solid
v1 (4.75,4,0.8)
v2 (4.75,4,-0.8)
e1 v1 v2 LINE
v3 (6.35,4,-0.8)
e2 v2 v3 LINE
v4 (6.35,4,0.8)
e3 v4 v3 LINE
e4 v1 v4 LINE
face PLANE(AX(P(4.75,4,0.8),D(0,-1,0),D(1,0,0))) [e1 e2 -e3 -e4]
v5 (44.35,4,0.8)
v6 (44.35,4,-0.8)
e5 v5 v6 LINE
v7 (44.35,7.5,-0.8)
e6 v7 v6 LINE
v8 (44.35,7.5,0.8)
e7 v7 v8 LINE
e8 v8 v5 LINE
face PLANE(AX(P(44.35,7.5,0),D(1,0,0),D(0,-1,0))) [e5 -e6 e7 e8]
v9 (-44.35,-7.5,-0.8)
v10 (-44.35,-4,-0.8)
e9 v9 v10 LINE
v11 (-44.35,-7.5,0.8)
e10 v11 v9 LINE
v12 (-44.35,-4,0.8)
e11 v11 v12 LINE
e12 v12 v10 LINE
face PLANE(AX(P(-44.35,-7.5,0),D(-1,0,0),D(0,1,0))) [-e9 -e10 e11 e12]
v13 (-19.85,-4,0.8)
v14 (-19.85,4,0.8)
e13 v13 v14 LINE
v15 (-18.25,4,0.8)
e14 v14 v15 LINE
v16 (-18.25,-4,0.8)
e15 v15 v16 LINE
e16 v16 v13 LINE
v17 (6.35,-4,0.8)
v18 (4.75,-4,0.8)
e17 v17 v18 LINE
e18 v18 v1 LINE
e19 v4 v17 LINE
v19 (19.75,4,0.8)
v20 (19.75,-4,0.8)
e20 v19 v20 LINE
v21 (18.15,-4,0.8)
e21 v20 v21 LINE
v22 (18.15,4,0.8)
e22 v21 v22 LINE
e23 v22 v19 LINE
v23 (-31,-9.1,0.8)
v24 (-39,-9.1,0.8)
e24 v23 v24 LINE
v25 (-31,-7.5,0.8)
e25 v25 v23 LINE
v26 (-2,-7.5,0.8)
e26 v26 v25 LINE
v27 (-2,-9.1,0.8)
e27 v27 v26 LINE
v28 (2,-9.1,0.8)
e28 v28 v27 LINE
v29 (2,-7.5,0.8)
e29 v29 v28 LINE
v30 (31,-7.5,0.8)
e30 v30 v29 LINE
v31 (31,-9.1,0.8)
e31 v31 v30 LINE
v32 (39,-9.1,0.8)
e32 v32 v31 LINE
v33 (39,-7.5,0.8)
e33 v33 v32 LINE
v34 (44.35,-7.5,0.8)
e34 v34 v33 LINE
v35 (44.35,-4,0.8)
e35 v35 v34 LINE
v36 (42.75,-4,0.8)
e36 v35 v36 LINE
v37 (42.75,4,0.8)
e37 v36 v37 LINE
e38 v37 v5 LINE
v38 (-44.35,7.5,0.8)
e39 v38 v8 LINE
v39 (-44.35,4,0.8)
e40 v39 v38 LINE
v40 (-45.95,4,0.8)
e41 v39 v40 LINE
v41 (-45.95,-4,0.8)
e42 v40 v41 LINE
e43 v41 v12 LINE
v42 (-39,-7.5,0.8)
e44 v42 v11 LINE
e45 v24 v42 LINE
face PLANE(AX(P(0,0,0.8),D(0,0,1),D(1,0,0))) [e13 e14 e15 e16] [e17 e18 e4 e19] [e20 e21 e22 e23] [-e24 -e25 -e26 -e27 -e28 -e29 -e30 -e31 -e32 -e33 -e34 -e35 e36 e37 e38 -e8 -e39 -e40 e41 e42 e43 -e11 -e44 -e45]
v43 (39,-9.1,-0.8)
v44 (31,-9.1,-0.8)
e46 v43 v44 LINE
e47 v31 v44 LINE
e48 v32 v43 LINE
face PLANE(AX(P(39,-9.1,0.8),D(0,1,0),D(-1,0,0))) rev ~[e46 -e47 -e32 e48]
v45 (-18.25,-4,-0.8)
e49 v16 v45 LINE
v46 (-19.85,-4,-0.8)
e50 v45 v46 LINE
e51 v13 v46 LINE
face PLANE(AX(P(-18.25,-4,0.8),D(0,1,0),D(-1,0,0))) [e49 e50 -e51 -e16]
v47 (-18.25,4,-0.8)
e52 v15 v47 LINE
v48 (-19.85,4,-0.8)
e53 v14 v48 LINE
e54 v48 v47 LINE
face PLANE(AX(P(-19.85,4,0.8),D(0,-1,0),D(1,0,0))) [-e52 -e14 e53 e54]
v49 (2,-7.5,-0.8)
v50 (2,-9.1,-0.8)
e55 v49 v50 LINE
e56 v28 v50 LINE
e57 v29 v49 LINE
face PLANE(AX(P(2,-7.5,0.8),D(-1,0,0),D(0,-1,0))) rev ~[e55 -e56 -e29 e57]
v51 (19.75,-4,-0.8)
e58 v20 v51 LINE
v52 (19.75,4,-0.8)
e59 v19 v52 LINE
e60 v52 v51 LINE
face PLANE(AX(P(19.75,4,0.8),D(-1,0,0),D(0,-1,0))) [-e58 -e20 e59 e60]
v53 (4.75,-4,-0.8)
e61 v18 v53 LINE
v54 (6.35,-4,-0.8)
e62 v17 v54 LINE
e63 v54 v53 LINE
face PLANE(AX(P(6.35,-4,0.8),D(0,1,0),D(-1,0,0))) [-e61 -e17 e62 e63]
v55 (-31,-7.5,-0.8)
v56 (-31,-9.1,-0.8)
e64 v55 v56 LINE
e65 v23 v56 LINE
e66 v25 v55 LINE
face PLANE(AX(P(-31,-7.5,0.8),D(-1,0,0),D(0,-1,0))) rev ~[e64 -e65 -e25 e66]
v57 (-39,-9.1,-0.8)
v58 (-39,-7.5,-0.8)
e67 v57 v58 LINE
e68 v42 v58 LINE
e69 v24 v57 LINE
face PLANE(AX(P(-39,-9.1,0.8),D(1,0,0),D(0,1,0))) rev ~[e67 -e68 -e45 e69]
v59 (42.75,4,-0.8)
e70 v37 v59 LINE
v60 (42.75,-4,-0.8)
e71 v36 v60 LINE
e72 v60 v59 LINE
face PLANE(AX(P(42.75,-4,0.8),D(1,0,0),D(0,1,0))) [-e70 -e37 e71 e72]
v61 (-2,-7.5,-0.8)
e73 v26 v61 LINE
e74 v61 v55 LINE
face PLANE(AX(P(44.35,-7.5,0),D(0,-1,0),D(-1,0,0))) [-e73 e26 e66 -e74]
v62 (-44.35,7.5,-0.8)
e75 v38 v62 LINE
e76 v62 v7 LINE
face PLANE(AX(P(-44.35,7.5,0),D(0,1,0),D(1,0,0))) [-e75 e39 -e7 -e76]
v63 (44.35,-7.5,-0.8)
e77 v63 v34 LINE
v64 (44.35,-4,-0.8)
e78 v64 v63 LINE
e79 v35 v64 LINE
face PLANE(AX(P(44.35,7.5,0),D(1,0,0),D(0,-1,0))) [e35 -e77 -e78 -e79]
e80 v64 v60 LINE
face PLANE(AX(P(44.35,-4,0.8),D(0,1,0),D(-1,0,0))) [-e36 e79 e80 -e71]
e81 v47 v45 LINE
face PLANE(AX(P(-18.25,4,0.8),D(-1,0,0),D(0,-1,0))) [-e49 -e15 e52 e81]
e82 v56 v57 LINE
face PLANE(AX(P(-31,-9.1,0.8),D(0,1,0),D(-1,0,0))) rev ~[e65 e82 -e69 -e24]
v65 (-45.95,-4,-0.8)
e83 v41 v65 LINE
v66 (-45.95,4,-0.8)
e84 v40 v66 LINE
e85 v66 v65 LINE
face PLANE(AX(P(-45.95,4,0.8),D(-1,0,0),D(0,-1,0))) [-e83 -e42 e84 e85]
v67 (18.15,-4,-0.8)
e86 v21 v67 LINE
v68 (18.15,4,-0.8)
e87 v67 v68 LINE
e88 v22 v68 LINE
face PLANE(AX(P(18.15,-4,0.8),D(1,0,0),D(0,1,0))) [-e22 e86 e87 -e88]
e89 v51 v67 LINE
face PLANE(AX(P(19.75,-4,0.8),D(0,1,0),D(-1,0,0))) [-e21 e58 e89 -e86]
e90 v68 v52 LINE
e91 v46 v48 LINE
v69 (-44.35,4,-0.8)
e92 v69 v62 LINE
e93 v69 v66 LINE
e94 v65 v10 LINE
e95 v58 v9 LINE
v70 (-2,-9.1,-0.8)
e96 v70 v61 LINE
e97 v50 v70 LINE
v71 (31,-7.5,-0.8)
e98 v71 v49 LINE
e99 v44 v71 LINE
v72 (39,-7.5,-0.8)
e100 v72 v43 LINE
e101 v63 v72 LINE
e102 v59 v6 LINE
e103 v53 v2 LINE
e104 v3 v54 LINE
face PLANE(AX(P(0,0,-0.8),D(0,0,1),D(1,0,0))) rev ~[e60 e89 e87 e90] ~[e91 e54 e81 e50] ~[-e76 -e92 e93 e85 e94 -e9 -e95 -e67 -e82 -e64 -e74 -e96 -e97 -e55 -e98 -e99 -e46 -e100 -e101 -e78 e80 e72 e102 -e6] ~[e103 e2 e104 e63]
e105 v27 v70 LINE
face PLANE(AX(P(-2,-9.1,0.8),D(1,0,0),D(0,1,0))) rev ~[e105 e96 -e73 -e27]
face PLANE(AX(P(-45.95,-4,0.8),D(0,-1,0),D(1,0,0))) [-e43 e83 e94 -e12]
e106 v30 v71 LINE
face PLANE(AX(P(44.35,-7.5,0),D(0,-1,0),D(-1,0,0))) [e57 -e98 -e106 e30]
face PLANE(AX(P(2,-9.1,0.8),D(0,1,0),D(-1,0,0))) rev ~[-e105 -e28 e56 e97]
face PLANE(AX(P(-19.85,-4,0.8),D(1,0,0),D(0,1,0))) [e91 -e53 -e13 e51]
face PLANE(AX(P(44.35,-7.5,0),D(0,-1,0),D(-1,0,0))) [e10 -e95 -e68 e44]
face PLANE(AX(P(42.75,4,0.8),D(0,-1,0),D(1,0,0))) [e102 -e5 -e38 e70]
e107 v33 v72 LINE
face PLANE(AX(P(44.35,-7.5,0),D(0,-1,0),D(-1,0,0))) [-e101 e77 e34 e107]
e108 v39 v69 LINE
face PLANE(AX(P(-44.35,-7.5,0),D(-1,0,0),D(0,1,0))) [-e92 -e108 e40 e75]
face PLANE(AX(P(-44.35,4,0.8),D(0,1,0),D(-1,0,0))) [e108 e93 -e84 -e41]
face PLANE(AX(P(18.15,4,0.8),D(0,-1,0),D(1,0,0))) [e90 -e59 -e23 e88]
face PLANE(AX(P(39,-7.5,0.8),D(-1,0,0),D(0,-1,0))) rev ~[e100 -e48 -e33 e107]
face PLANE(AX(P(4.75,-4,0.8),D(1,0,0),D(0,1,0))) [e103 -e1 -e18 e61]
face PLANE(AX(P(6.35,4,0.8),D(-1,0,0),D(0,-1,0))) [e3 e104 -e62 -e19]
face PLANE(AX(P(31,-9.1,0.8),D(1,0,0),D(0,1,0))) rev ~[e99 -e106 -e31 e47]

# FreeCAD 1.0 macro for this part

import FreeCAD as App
import Part
import Sketcher
from FreeCAD import Vector
Q = App.Units.Quantity

doc = App.newDocument("Part")
body = doc.addObject("PartDesign::Body", "Body")

sketch1 = doc.addObject("Sketcher::SketchObject", "Sketch")
body.addObject(sketch1)
sketch1.AttachmentSupport = (doc.XY_Plane, [""])
sketch1.MapMode = "FlatFace"
sketch1.addGeometry([
    Part.LineSegment(Vector(-44, -8, 0), Vector(44, -8, 0)),
    Part.LineSegment(Vector(44, -8, 0), Vector(44, 8, 0)),
    Part.LineSegment(Vector(44, 8, 0), Vector(-44, 8, 0)),
    Part.LineSegment(Vector(-44, 8, 0), Vector(-44, -8, 0)),
], False)
sketch1.addConstraint([
    Sketcher.Constraint("Coincident", 0, 2, 1, 1),
    Sketcher.Constraint("Coincident", 1, 2, 2, 1),
    Sketcher.Constraint("Coincident", 2, 2, 3, 1),
    Sketcher.Constraint("Coincident", 3, 2, 0, 1),
    Sketcher.Constraint("Horizontal", 0),
    Sketcher.Constraint("Vertical", 1),
    Sketcher.Constraint("Horizontal", 2),
    Sketcher.Constraint("Vertical", 3),
    Sketcher.Constraint("Symmetric", 0, 2, 2, 2, -1, 1),
    Sketcher.Constraint("DistanceY", 1, 1, 1, 2, Q("15 mm")),
    Sketcher.Constraint("DistanceX", 0, 1, 0, 2, Q("88.7 mm")),
])
pad1 = doc.addObject("PartDesign::Pad", "Pad")
body.addObject(pad1)
pad1.Profile = sketch1
pad1.Length = 1.6
pad1.Midplane = True

sketch2 = doc.addObject("Sketcher::SketchObject", "Sketch001")
body.addObject(sketch2)
sketch2.AttachmentSupport = (doc.XY_Plane, [""])
sketch2.MapMode = "FlatFace"
sketch2.AttachmentOffset = App.Placement(Vector(0, 0, 0.8), App.Rotation())
sketch2.addGeometry([
    Part.LineSegment(Vector(-31, -7.5, 0), Vector(-39, -7.5, 0)),
    Part.LineSegment(Vector(-39, -7.5, 0), Vector(-39, -9.1, 0)),
    Part.LineSegment(Vector(-39, -9.1, 0), Vector(-31, -9.1, 0)),
    Part.LineSegment(Vector(-31, -9.1, 0), Vector(-31, -7.5, 0)),
    Part.LineSegment(Vector(39, -7.5, 0), Vector(31, -7.5, 0)),
    Part.LineSegment(Vector(31, -7.5, 0), Vector(31, -9.1, 0)),
    Part.LineSegment(Vector(31, -9.1, 0), Vector(39, -9.1, 0)),
    Part.LineSegment(Vector(39, -9.1, 0), Vector(39, -7.5, 0)),
    Part.LineSegment(Vector(2, -7.5, 0), Vector(-2, -7.5, 0)),
    Part.LineSegment(Vector(-2, -7.5, 0), Vector(-2, -9.1, 0)),
    Part.LineSegment(Vector(-2, -9.1, 0), Vector(2, -9.1, 0)),
    Part.LineSegment(Vector(2, -9.1, 0), Vector(2, -7.5, 0)),
], False)
sketch2.addConstraint([
    Sketcher.Constraint("Coincident", 0, 2, 1, 1),
    Sketcher.Constraint("Coincident", 1, 2, 2, 1),
    Sketcher.Constraint("Coincident", 2, 2, 3, 1),
    Sketcher.Constraint("Coincident", 3, 2, 0, 1),
    Sketcher.Constraint("Coincident", 4, 2, 5, 1),
    Sketcher.Constraint("Coincident", 5, 2, 6, 1),
    Sketcher.Constraint("Coincident", 6, 2, 7, 1),
    Sketcher.Constraint("Coincident", 7, 2, 4, 1),
    Sketcher.Constraint("Coincident", 8, 2, 9, 1),
    Sketcher.Constraint("Coincident", 9, 2, 10, 1),
    Sketcher.Constraint("Coincident", 10, 2, 11, 1),
    Sketcher.Constraint("Coincident", 11, 2, 8, 1),
    Sketcher.Constraint("Horizontal", 0),
    Sketcher.Constraint("Vertical", 1),
    Sketcher.Constraint("Horizontal", 2),
    Sketcher.Constraint("Vertical", 3),
    Sketcher.Constraint("Horizontal", 4),
    Sketcher.Constraint("Vertical", 5),
    Sketcher.Constraint("Horizontal", 6),
    Sketcher.Constraint("Vertical", 7),
    Sketcher.Constraint("Horizontal", 8),
    Sketcher.Constraint("Vertical", 9),
    Sketcher.Constraint("Horizontal", 10),
    Sketcher.Constraint("Vertical", 11),
    Sketcher.Constraint("Symmetric", 3, 2, 4, 2, -2),
    Sketcher.Constraint("Symmetric", 1, 2, 6, 2, -2),
    Sketcher.Constraint("Horizontal", 7, 2, 8, 2),
    Sketcher.Constraint("Horizontal", 6, 2, 9, 2),
    Sketcher.Constraint("DistanceX", 0, 2, 0, 1, Q("8 mm")),
    Sketcher.Constraint("DistanceX", 8, 2, 8, 1, Q("4 mm")),
    Sketcher.Constraint("DistanceY", 1, 2, 1, 1, Q("1.6 mm")),
    Sketcher.Constraint("DistanceX", 0, 2, 4, 2, Q("70 mm")),
    Sketcher.Constraint("DistanceX", 8, 2, -1, 1, Q("2 mm")),
    Sketcher.Constraint("DistanceY", 0, 2, -1, 1, Q("7.5 mm")),
])
pad2 = doc.addObject("PartDesign::Pad", "Pad001")
body.addObject(pad2)
pad2.Profile = sketch2
pad2.Length = 1.6
pad2.Reversed = True

sketch3 = doc.addObject("Sketcher::SketchObject", "Sketch002")
body.addObject(sketch3)
sketch3.AttachmentSupport = (doc.XY_Plane, [""])
sketch3.MapMode = "FlatFace"
sketch3.AttachmentOffset = App.Placement(Vector(0, 0, 0.8), App.Rotation())
sketch3.addGeometry([
    Part.LineSegment(Vector(-44.4, -4, 0), Vector(-44.4, 4, 0)),
    Part.LineSegment(Vector(-44.4, 4, 0), Vector(-46, 4, 0)),
    Part.LineSegment(Vector(-46, 4, 0), Vector(-46, -4, 0)),
    Part.LineSegment(Vector(-46, -4, 0), Vector(-44.4, -4, 0)),
], False)
sketch3.addConstraint([
    Sketcher.Constraint("Coincident", 0, 2, 1, 1),
    Sketcher.Constraint("Coincident", 1, 2, 2, 1),
    Sketcher.Constraint("Coincident", 2, 2, 3, 1),
    Sketcher.Constraint("Coincident", 3, 2, 0, 1),
    Sketcher.Constraint("Vertical", 0),
    Sketcher.Constraint("Horizontal", 1),
    Sketcher.Constraint("Vertical", 2),
    Sketcher.Constraint("Horizontal", 3),
    Sketcher.Constraint("DistanceY", 0, 1, 0, 2, Q("8 mm")),
    Sketcher.Constraint("DistanceX", 1, 2, 1, 1, Q("1.6 mm")),
    Sketcher.Constraint("DistanceY", -1, 1, 0, 2, Q("4 mm")),
    Sketcher.Constraint("DistanceX", 0, 2, -1, 1, Q("44.35 mm")),
])
pad3 = doc.addObject("PartDesign::Pad", "Pad002")
body.addObject(pad3)
pad3.Profile = sketch3
pad3.Length = 1.6
pad3.Reversed = True

sketch4 = doc.addObject("Sketcher::SketchObject", "Sketch003")
body.addObject(sketch4)
sketch4.AttachmentSupport = (doc.XY_Plane, [""])
sketch4.MapMode = "FlatFace"
sketch4.AttachmentOffset = App.Placement(Vector(0, 0, 0.8), App.Rotation())
sketch4.addGeometry([
    Part.LineSegment(Vector(-19.9, -4, 0), Vector(-18.2, -4, 0)),
    Part.LineSegment(Vector(-18.2, -4, 0), Vector(-18.2, 4, 0)),
    Part.LineSegment(Vector(-18.2, 4, 0), Vector(-19.9, 4, 0)),
    Part.LineSegment(Vector(-19.9, 4, 0), Vector(-19.9, -4, 0)),
    Part.LineSegment(Vector(4.8, -4, 0), Vector(6.3, -4, 0)),
    Part.LineSegment(Vector(6.3, -4, 0), Vector(6.3, 4, 0)),
    Part.LineSegment(Vector(6.3, 4, 0), Vector(4.8, 4, 0)),
    Part.LineSegment(Vector(4.8, 4, 0), Vector(4.8, -4, 0)),
    Part.LineSegment(Vector(18.1, -4, 0), Vector(19.8, -4, 0)),
    Part.LineSegment(Vector(19.8, -4, 0), Vector(19.8, 4, 0)),
    Part.LineSegment(Vector(19.8, 4, 0), Vector(18.1, 4, 0)),
    Part.LineSegment(Vector(18.1, 4, 0), Vector(18.1, -4, 0)),
    Part.LineSegment(Vector(42.8, -4, 0), Vector(44.4, -4, 0)),
    Part.LineSegment(Vector(44.4, -4, 0), Vector(44.4, 4, 0)),
    Part.LineSegment(Vector(44.4, 4, 0), Vector(42.8, 4, 0)),
    Part.LineSegment(Vector(42.8, 4, 0), Vector(42.8, -4, 0)),
], False)
sketch4.addConstraint([
    Sketcher.Constraint("Coincident", 0, 2, 1, 1),
    Sketcher.Constraint("Coincident", 1, 2, 2, 1),
    Sketcher.Constraint("Coincident", 2, 2, 3, 1),
    Sketcher.Constraint("Coincident", 3, 2, 0, 1),
    Sketcher.Constraint("Coincident", 4, 2, 5, 1),
    Sketcher.Constraint("Coincident", 5, 2, 6, 1),
    Sketcher.Constraint("Coincident", 6, 2, 7, 1),
    Sketcher.Constraint("Coincident", 7, 2, 4, 1),
    Sketcher.Constraint("Coincident", 8, 2, 9, 1),
    Sketcher.Constraint("Coincident", 9, 2, 10, 1),
    Sketcher.Constraint("Coincident", 10, 2, 11, 1),
    Sketcher.Constraint("Coincident", 11, 2, 8, 1),
    Sketcher.Constraint("Coincident", 12, 2, 13, 1),
    Sketcher.Constraint("Coincident", 13, 2, 14, 1),
    Sketcher.Constraint("Coincident", 14, 2, 15, 1),
    Sketcher.Constraint("Coincident", 15, 2, 12, 1),
    Sketcher.Constraint("Horizontal", 0),
    Sketcher.Constraint("Vertical", 1),
    Sketcher.Constraint("Horizontal", 2),
    Sketcher.Constraint("Vertical", 3),
    Sketcher.Constraint("Horizontal", 4),
    Sketcher.Constraint("Vertical", 5),
    Sketcher.Constraint("Horizontal", 6),
    Sketcher.Constraint("Vertical", 7),
    Sketcher.Constraint("Horizontal", 8),
    Sketcher.Constraint("Vertical", 9),
    Sketcher.Constraint("Horizontal", 10),
    Sketcher.Constraint("Vertical", 11),
    Sketcher.Constraint("Horizontal", 12),
    Sketcher.Constraint("Vertical", 13),
    Sketcher.Constraint("Horizontal", 14),
    Sketcher.Constraint("Vertical", 15),
    Sketcher.Constraint("Horizontal", 3, 2, 4, 2),
    Sketcher.Constraint("Horizontal", 2, 2, 5, 2),
    Sketcher.Constraint("Horizontal", 7, 2, 8, 2),
    Sketcher.Constraint("Horizontal", 6, 2, 9, 2),
    Sketcher.Constraint("Horizontal", 11, 2, 12, 2),
    Sketcher.Constraint("Horizontal", 10, 2, 13, 2),
    Sketcher.Constraint("Equal", 2, 4),
    Sketcher.Constraint("Equal", 6, 8),
    Sketcher.Constraint("Equal", 10, 12),
    Sketcher.Constraint("DistanceY", 1, 1, 1, 2, Q("8 mm")),
    Sketcher.Constraint("DistanceX", 0, 1, 0, 2, Q("1.6 mm")),
    Sketcher.Constraint("DistanceY", 0, 2, -1, 1, Q("4 mm")),
    Sketcher.Constraint("DistanceX", 1, 2, 6, 2, Q("23 mm")),
    Sketcher.Constraint("DistanceX", 7, 2, 8, 2, Q("15 mm")),
    Sketcher.Constraint("DistanceX", 4, 2, 12, 2, Q("38 mm")),
    Sketcher.Constraint("DistanceX", 0, 2, -1, 1, Q("18.25 mm")),
])
pocket1 = doc.addObject("PartDesign::Pocket", "Pocket")
body.addObject(pocket1)
pocket1.Profile = sketch4
pocket1.Length = 1.6

doc.recompute()
